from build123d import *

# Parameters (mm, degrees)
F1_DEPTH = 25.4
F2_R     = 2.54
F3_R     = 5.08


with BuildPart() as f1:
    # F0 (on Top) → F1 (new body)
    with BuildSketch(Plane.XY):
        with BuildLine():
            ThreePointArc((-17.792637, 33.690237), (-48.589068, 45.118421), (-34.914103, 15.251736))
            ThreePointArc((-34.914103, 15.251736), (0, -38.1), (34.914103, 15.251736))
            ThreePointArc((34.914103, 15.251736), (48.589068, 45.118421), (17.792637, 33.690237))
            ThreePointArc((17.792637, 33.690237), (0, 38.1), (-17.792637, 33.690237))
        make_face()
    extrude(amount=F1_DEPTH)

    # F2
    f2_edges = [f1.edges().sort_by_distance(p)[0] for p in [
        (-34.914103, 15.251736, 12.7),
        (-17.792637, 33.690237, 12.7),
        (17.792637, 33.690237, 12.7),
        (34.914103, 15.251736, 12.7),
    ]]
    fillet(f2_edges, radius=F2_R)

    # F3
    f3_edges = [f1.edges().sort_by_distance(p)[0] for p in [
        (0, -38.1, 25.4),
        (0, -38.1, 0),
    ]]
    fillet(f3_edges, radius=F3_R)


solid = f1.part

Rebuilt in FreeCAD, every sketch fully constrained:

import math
import FreeCAD as App
import Part
import Sketcher
from FreeCAD import Vector
Q = App.Units.Quantity


def edges_at(feature, points):
    """Names of the edges that pass closest to the given points."""
    edges = feature.Shape.Edges
    near = lambda p: min(range(len(edges)), key=lambda i: edges[i].distToShape(Part.Vertex(*p))[0])
    return sorted({f"Edge{near(p) + 1}" for p in points})

doc = App.newDocument("Part")
body = doc.addObject("PartDesign::Body", "Body")

sketch1 = doc.addObject("Sketcher::SketchObject", "Sketch")
body.addObject(sketch1)
sketch1.AttachmentSupport = (doc.XY_Plane, [""])
sketch1.MapMode = "FlatFace"
sketch1.addGeometry([
    Part.ArcOfCircle(Part.Circle(Vector(-36, 33, 0), Vector(0, 0, 1), 18), math.radians(2), math.radians(272)),
    Part.ArcOfCircle(Part.Circle(Vector(0, 0, 0), Vector(0, 0, 1), 38), math.radians(156), math.radians(384)),
    Part.ArcOfCircle(Part.Circle(Vector(36, 33, 0), Vector(0, 0, 1), 18), math.radians(-92), math.radians(178)),
    Part.ArcOfCircle(Part.Circle(Vector(0, 0, 0), Vector(0, 0, 1), 38), math.radians(62), math.radians(118)),
], False)
sketch1.addConstraint([
    Sketcher.Constraint("Coincident", 0, 2, 1, 1),
    Sketcher.Constraint("Coincident", 1, 2, 2, 1),
    Sketcher.Constraint("Coincident", 2, 2, 3, 1),
    Sketcher.Constraint("Coincident", 3, 2, 0, 1),
    Sketcher.Constraint("Coincident", 1, 3, -1, 1),
    Sketcher.Constraint("Coincident", 3, 3, -1, 1),
    Sketcher.Constraint("Equal", 0, 2),
    Sketcher.Constraint("Equal", 1, 3),
    Sketcher.Constraint("Symmetric", 0, 3, 2, 3, -2),
    Sketcher.Constraint("Radius", 0, Q("0.7 in")),
    Sketcher.Constraint("Radius", 1, Q("1.5 in")),
    Sketcher.Constraint("DistanceX", 0, 3, -1, 1, Q("1.4 in")),
    Sketcher.Constraint("DistanceY", -1, 1, 0, 3, Q("1.3 in")),
])
pad1 = doc.addObject("PartDesign::Pad", "Pad")
body.addObject(pad1)
pad1.Profile = sketch1
pad1.Length = Q("1 in")
doc.recompute()

fillet = doc.addObject("PartDesign::Fillet", "Fillet")
body.addObject(fillet)
fillet.Base = (pad1, edges_at(pad1, [
    (-34.914, 15.252, 12.7),
    (-17.793, 33.69, 12.7),
    (17.793, 33.69, 12.7),
    (34.914, 15.252, 12.7),
]))
fillet.Radius = Q("0.1 in")
doc.recompute()

fillet2 = doc.addObject("PartDesign::Fillet", "Fillet001")
body.addObject(fillet2)
fillet2.Base = (fillet, edges_at(fillet, [(0, -38.1, 25.4), (0, -38.1, 0)]))
fillet2.Radius = Q("0.2 in")

doc.recompute()
